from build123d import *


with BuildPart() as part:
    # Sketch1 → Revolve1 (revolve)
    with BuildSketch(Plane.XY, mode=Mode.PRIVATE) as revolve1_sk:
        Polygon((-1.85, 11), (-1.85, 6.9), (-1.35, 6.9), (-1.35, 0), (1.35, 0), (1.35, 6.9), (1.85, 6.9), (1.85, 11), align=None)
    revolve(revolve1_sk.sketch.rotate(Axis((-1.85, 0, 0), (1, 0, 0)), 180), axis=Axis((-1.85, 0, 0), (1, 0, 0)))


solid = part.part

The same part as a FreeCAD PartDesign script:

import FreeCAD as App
import Part
import Sketcher
from FreeCAD import Vector
Q = App.Units.Quantity


def add_polygon(sketch, points):
    """Adds a closed chain of lines whose ends are joined by coincident constraints."""
    first, n = sketch.GeometryCount, len(points)
    for a, b in zip(points, points[1:] + points[:1]):
        sketch.addGeometry(Part.LineSegment(App.Vector(*a, 0), App.Vector(*b, 0)), False)
    for i in range(n):
        sketch.addConstraint(Sketcher.Constraint("Coincident", first + i, 2, first + (i + 1) % n, 1))

doc = App.newDocument("Part")
body = doc.addObject("PartDesign::Body", "Body")

# Sketch on XY plane
sketch1 = body.newObject("Sketcher::SketchObject", "Sketch")
sketch1.AttachmentSupport = (doc.getObject("XY_Plane"), [""])
sketch1.MapMode = "FlatFace"
add_polygon(sketch1, [(-1.9, 11), (-1.9, 6.9), (-1.4, 6.9), (-1.4, 0), (1.4, 0), (1.4, 6.9), (1.9, 6.9), (1.9, 11)])  # lines 0-7
sketch1.addConstraint(Sketcher.Constraint("Vertical", 0))
sketch1.addConstraint(Sketcher.Constraint("Horizontal", 1))
sketch1.addConstraint(Sketcher.Constraint("Vertical", 2))
sketch1.addConstraint(Sketcher.Constraint("Horizontal", 3))
sketch1.addConstraint(Sketcher.Constraint("Vertical", 4))
sketch1.addConstraint(Sketcher.Constraint("Horizontal", 5))
sketch1.addConstraint(Sketcher.Constraint("Vertical", 6))
sketch1.addConstraint(Sketcher.Constraint("Horizontal", 7))
sketch1.addConstraint(Sketcher.Constraint("Symmetric", 2, 2, 3, 2, -1, 1))
sketch1.addConstraint(Sketcher.Constraint("Symmetric", 0, 2, 5, 2, -2))
sketch1.addConstraint(Sketcher.Constraint("DistanceX", 1, 1, 1, 2, Q("0.5 mm")))
sketch1.addConstraint(Sketcher.Constraint("DistanceX", 3, 1, 3, 2, Q("2.7 mm")))
sketch1.addConstraint(Sketcher.Constraint("DistanceY", 0, 2, 0, 1, Q("4.1 mm")))
sketch1.addConstraint(Sketcher.Constraint("DistanceY", 2, 2, 2, 1, Q("6.9 mm")))
revolution = body.newObject("PartDesign::Revolution", "Revolution")
revolution.Profile = sketch1
revolution.ReferenceAxis = (sketch1, ["H_Axis"])
revolution.Angle = 360

doc.recompute()
